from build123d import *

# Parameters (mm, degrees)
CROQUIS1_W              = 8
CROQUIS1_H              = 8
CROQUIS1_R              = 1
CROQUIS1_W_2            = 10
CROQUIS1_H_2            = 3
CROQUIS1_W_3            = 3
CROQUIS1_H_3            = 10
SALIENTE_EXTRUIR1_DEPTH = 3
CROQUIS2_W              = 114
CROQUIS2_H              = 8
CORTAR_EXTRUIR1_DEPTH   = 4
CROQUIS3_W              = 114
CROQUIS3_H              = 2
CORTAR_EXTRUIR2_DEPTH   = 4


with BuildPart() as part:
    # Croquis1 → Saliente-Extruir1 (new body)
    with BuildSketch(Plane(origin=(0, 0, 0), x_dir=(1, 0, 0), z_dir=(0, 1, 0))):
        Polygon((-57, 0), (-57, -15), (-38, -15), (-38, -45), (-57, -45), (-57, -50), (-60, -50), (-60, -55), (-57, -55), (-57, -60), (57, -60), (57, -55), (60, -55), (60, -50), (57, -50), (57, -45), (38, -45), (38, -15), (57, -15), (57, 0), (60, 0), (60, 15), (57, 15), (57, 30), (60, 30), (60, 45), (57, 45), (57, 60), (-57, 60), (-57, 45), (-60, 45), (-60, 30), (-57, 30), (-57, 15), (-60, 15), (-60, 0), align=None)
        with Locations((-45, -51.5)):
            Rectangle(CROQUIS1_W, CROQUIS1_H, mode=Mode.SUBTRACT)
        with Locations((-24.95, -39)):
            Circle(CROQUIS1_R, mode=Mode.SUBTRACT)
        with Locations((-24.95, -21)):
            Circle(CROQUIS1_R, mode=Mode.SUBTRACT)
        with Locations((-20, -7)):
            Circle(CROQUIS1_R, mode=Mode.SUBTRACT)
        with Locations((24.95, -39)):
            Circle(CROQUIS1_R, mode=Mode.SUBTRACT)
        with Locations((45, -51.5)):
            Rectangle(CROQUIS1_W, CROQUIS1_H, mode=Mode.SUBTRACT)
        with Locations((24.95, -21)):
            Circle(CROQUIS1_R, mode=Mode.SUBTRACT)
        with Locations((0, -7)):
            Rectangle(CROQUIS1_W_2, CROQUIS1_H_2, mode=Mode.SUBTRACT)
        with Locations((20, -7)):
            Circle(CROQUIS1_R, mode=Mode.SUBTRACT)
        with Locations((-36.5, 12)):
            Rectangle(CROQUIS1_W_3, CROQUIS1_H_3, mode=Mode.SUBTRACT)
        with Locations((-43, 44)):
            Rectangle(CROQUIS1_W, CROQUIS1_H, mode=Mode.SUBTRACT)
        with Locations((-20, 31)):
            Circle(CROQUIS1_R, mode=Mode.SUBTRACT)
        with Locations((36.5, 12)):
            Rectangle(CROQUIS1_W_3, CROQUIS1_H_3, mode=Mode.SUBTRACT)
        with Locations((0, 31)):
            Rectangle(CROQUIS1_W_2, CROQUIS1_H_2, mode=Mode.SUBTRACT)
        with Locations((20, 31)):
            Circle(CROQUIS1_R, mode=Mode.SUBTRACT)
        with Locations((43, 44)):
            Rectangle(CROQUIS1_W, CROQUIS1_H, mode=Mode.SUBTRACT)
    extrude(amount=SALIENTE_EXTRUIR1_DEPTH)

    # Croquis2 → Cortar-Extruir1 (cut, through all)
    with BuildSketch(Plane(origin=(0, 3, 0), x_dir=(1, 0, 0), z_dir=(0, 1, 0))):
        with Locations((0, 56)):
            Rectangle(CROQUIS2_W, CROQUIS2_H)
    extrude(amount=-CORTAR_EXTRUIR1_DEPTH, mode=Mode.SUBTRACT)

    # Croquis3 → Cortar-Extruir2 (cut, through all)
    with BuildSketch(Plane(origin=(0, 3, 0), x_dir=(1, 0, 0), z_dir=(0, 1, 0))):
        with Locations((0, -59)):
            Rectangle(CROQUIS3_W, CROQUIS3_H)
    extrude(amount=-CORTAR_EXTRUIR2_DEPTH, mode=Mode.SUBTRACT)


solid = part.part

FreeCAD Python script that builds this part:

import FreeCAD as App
import Part
import Sketcher

V = App.Vector

doc = App.newDocument("Part")
body = doc.addObject("PartDesign::Body", "Body")

# Sketch on XZ plane
sketch1 = body.newObject("Sketcher::SketchObject", "Sketch")
sketch1.AttachmentSupport = (doc.getObject("XZ_Plane"), [""])
sketch1.MapMode = "FlatFace"
sketch1.addGeometry([
    Part.LineSegment(V(-57, 0, 0), V(-57, 15, 0)),  # 0
    Part.LineSegment(V(-57, 15, 0), V(-38, 15, 0)),  # 1
    Part.LineSegment(V(-38, 15, 0), V(-38, 45, 0)),  # 2
    Part.LineSegment(V(-38, 45, 0), V(-57, 45, 0)),  # 3
    Part.LineSegment(V(-57, 45, 0), V(-57, 50, 0)),  # 4
    Part.LineSegment(V(-57, 50, 0), V(-60, 50, 0)),  # 5
    Part.LineSegment(V(-60, 50, 0), V(-60, 55, 0)),  # 6
    Part.LineSegment(V(-60, 55, 0), V(-57, 55, 0)),  # 7
    Part.LineSegment(V(-57, 55, 0), V(-57, 60, 0)),  # 8
    Part.LineSegment(V(-57, 60, 0), V(57, 60, 0)),  # 9
    Part.LineSegment(V(57, 60, 0), V(57, 55, 0)),  # 10
    Part.LineSegment(V(57, 55, 0), V(60, 55, 0)),  # 11
    Part.LineSegment(V(60, 55, 0), V(60, 50, 0)),  # 12
    Part.LineSegment(V(60, 50, 0), V(57, 50, 0)),  # 13
    Part.LineSegment(V(57, 50, 0), V(57, 45, 0)),  # 14
    Part.LineSegment(V(57, 45, 0), V(38, 45, 0)),  # 15
    Part.LineSegment(V(38, 45, 0), V(38, 15, 0)),  # 16
    Part.LineSegment(V(38, 15, 0), V(57, 15, 0)),  # 17
    Part.LineSegment(V(57, 15, 0), V(57, 0, 0)),  # 18
    Part.LineSegment(V(57, 0, 0), V(60, 0, 0)),  # 19
    Part.LineSegment(V(60, 0, 0), V(60, -15, 0)),  # 20
    Part.LineSegment(V(60, -15, 0), V(57, -15, 0)),  # 21
    Part.LineSegment(V(57, -15, 0), V(57, -30, 0)),  # 22
    Part.LineSegment(V(57, -30, 0), V(60, -30, 0)),  # 23
    Part.LineSegment(V(60, -30, 0), V(60, -45, 0)),  # 24
    Part.LineSegment(V(60, -45, 0), V(57, -45, 0)),  # 25
    Part.LineSegment(V(57, -45, 0), V(57, -60, 0)),  # 26
    Part.LineSegment(V(57, -60, 0), V(-57, -60, 0)),  # 27
    Part.LineSegment(V(-57, -60, 0), V(-57, -45, 0)),  # 28
    Part.LineSegment(V(-57, -45, 0), V(-60, -45, 0)),  # 29
    Part.LineSegment(V(-60, -45, 0), V(-60, -30, 0)),  # 30
    Part.LineSegment(V(-60, -30, 0), V(-57, -30, 0)),  # 31
    Part.LineSegment(V(-57, -30, 0), V(-57, -15, 0)),  # 32
    Part.LineSegment(V(-57, -15, 0), V(-60, -15, 0)),  # 33
    Part.LineSegment(V(-60, -15, 0), V(-60, 0, 0)),  # 34
    Part.LineSegment(V(-60, 0, 0), V(-57, 0, 0)),  # 35
    Part.LineSegment(V(-41, 55.5, 0), V(-49, 55.5, 0)),  # 36
    Part.LineSegment(V(-49, 55.5, 0), V(-49, 47.5, 0)),  # 37
    Part.LineSegment(V(-49, 47.5, 0), V(-41, 47.5, 0)),  # 38
    Part.LineSegment(V(-41, 47.5, 0), V(-41, 55.5, 0)),  # 39
    Part.Circle(V(-24.9, 39, 0), V(0, 0, 1), 1),  # 40
    Part.Circle(V(-24.9, 21, 0), V(0, 0, 1), 1),  # 41
    Part.Circle(V(-20, 7, 0), V(0, 0, 1), 1),  # 42
    Part.LineSegment(V(5, 8.5, 0), V(-5, 8.5, 0)),  # 43
    Part.LineSegment(V(-5, 8.5, 0), V(-5, 5.5, 0)),  # 44
    Part.LineSegment(V(-5, 5.5, 0), V(5, 5.5, 0)),  # 45
    Part.LineSegment(V(5, 5.5, 0), V(5, 8.5, 0)),  # 46
    Part.LineSegment(V(49, 55.5, 0), V(41, 55.5, 0)),  # 47
    Part.LineSegment(V(41, 55.5, 0), V(41, 47.5, 0)),  # 48
    Part.LineSegment(V(41, 47.5, 0), V(49, 47.5, 0)),  # 49
    Part.LineSegment(V(49, 47.5, 0), V(49, 55.5, 0)),  # 50
    Part.Circle(V(24.9, 39, 0), V(0, 0, 1), 1),  # 51
    Part.Circle(V(20, 7, 0), V(0, 0, 1), 1),  # 52
    Part.Circle(V(24.9, 21, 0), V(0, 0, 1), 1),  # 53
    Part.LineSegment(V(-35, -7, 0), V(-38, -7, 0)),  # 54
    Part.LineSegment(V(-38, -7, 0), V(-38, -17, 0)),  # 55
    Part.LineSegment(V(-38, -17, 0), V(-35, -17, 0)),  # 56
    Part.LineSegment(V(-35, -17, 0), V(-35, -7, 0)),  # 57
    Part.LineSegment(V(-39, -40, 0), V(-47, -40, 0)),  # 58
    Part.LineSegment(V(-47, -40, 0), V(-47, -48, 0)),  # 59
    Part.LineSegment(V(-47, -48, 0), V(-39, -48, 0)),  # 60
    Part.LineSegment(V(-39, -48, 0), V(-39, -40, 0)),  # 61
    Part.Circle(V(-20, -31, 0), V(0, 0, 1), 1),  # 62
    Part.LineSegment(V(5, -29.5, 0), V(-5, -29.5, 0)),  # 63
    Part.LineSegment(V(-5, -29.5, 0), V(-5, -32.5, 0)),  # 64
    Part.LineSegment(V(-5, -32.5, 0), V(5, -32.5, 0)),  # 65
    Part.LineSegment(V(5, -32.5, 0), V(5, -29.5, 0)),  # 66
    Part.LineSegment(V(38, -7, 0), V(35, -7, 0)),  # 67
    Part.LineSegment(V(35, -7, 0), V(35, -17, 0)),  # 68
    Part.LineSegment(V(35, -17, 0), V(38, -17, 0)),  # 69
    Part.LineSegment(V(38, -17, 0), V(38, -7, 0)),  # 70
    Part.Circle(V(20, -31, 0), V(0, 0, 1), 1),  # 71
    Part.LineSegment(V(47, -40, 0), V(39, -40, 0)),  # 72
    Part.LineSegment(V(39, -40, 0), V(39, -48, 0)),  # 73
    Part.LineSegment(V(39, -48, 0), V(47, -48, 0)),  # 74
    Part.LineSegment(V(47, -48, 0), V(47, -40, 0)),  # 75
], False)
sketch1.addConstraint([
    Sketcher.Constraint("Coincident", 0, 2, 1, 1),
    Sketcher.Constraint("Coincident", 1, 2, 2, 1),
    Sketcher.Constraint("Coincident", 2, 2, 3, 1),
    Sketcher.Constraint("Coincident", 3, 2, 4, 1),
    Sketcher.Constraint("Coincident", 4, 2, 5, 1),
    Sketcher.Constraint("Coincident", 5, 2, 6, 1),
    Sketcher.Constraint("Coincident", 6, 2, 7, 1),
    Sketcher.Constraint("Coincident", 7, 2, 8, 1),
    Sketcher.Constraint("Coincident", 8, 2, 9, 1),
    Sketcher.Constraint("Coincident", 9, 2, 10, 1),
    Sketcher.Constraint("Coincident", 10, 2, 11, 1),
    Sketcher.Constraint("Coincident", 11, 2, 12, 1),
    Sketcher.Constraint("Coincident", 12, 2, 13, 1),
    Sketcher.Constraint("Coincident", 13, 2, 14, 1),
    Sketcher.Constraint("Coincident", 14, 2, 15, 1),
    Sketcher.Constraint("Coincident", 15, 2, 16, 1),
    Sketcher.Constraint("Coincident", 16, 2, 17, 1),
    Sketcher.Constraint("Coincident", 17, 2, 18, 1),
    Sketcher.Constraint("Coincident", 18, 2, 19, 1),
    Sketcher.Constraint("Coincident", 19, 2, 20, 1),
    Sketcher.Constraint("Coincident", 20, 2, 21, 1),
    Sketcher.Constraint("Coincident", 21, 2, 22, 1),
    Sketcher.Constraint("Coincident", 22, 2, 23, 1),
    Sketcher.Constraint("Coincident", 23, 2, 24, 1),
    Sketcher.Constraint("Coincident", 24, 2, 25, 1),
    Sketcher.Constraint("Coincident", 25, 2, 26, 1),
    Sketcher.Constraint("Coincident", 26, 2, 27, 1),
    Sketcher.Constraint("Coincident", 27, 2, 28, 1),
    Sketcher.Constraint("Coincident", 28, 2, 29, 1),
    Sketcher.Constraint("Coincident", 29, 2, 30, 1),
    Sketcher.Constraint("Coincident", 30, 2, 31, 1),
    Sketcher.Constraint("Coincident", 31, 2, 32, 1),
    Sketcher.Constraint("Coincident", 32, 2, 33, 1),
    Sketcher.Constraint("Coincident", 33, 2, 34, 1),
    Sketcher.Constraint("Coincident", 34, 2, 35, 1),
    Sketcher.Constraint("Coincident", 35, 2, 0, 1),
    Sketcher.Constraint("Coincident", 36, 2, 37, 1),
    Sketcher.Constraint("Coincident", 37, 2, 38, 1),
    Sketcher.Constraint("Coincident", 38, 2, 39, 1),
    Sketcher.Constraint("Coincident", 39, 2, 36, 1),
    Sketcher.Constraint("Coincident", 43, 2, 44, 1),
    Sketcher.Constraint("Coincident", 44, 2, 45, 1),
    Sketcher.Constraint("Coincident", 45, 2, 46, 1),
    Sketcher.Constraint("Coincident", 46, 2, 43, 1),
    Sketcher.Constraint("Coincident", 47, 2, 48, 1),
    Sketcher.Constraint("Coincident", 48, 2, 49, 1),
    Sketcher.Constraint("Coincident", 49, 2, 50, 1),
    Sketcher.Constraint("Coincident", 50, 2, 47, 1),
    Sketcher.Constraint("Coincident", 54, 2, 55, 1),
    Sketcher.Constraint("Coincident", 55, 2, 56, 1),
    Sketcher.Constraint("Coincident", 56, 2, 57, 1),
    Sketcher.Constraint("Coincident", 57, 2, 54, 1),
    Sketcher.Constraint("Coincident", 58, 2, 59, 1),
    Sketcher.Constraint("Coincident", 59, 2, 60, 1),
    Sketcher.Constraint("Coincident", 60, 2, 61, 1),
    Sketcher.Constraint("Coincident", 61, 2, 58, 1),
    Sketcher.Constraint("Coincident", 63, 2, 64, 1),
    Sketcher.Constraint("Coincident", 64, 2, 65, 1),
    Sketcher.Constraint("Coincident", 65, 2, 66, 1),
    Sketcher.Constraint("Coincident", 66, 2, 63, 1),
    Sketcher.Constraint("Coincident", 67, 2, 68, 1),
    Sketcher.Constraint("Coincident", 68, 2, 69, 1),
    Sketcher.Constraint("Coincident", 69, 2, 70, 1),
    Sketcher.Constraint("Coincident", 70, 2, 67, 1),
    Sketcher.Constraint("Coincident", 72, 2, 73, 1),
    Sketcher.Constraint("Coincident", 73, 2, 74, 1),
    Sketcher.Constraint("Coincident", 74, 2, 75, 1),
    Sketcher.Constraint("Coincident", 75, 2, 72, 1),
    Sketcher.Constraint("Vertical", 0),
    Sketcher.Constraint("Horizontal", 1),
    Sketcher.Constraint("Vertical", 2),
    Sketcher.Constraint("Horizontal", 3),
    Sketcher.Constraint("Vertical", 4),
    Sketcher.Constraint("Horizontal", 5),
    Sketcher.Constraint("Vertical", 6),
    Sketcher.Constraint("Horizontal", 7),
    Sketcher.Constraint("Vertical", 8),
    Sketcher.Constraint("Horizontal", 9),
    Sketcher.Constraint("Vertical", 10),
    Sketcher.Constraint("Horizontal", 11),
    Sketcher.Constraint("Vertical", 12),
    Sketcher.Constraint("Horizontal", 13),
    Sketcher.Constraint("Vertical", 14),
    Sketcher.Constraint("Horizontal", 15),
    Sketcher.Constraint("Vertical", 16),
    Sketcher.Constraint("Horizontal", 17),
    Sketcher.Constraint("Vertical", 18),
    Sketcher.Constraint("Horizontal", 19),
    Sketcher.Constraint("Vertical", 20),
    Sketcher.Constraint("Horizontal", 21),
    Sketcher.Constraint("Vertical", 22),
    Sketcher.Constraint("Horizontal", 23),
    Sketcher.Constraint("Vertical", 24),
    Sketcher.Constraint("Horizontal", 25),
    Sketcher.Constraint("Vertical", 26),
    Sketcher.Constraint("Horizontal", 27),
    Sketcher.Constraint("Vertical", 28),
    Sketcher.Constraint("Horizontal", 29),
    Sketcher.Constraint("Vertical", 30),
    Sketcher.Constraint("Horizontal", 31),
    Sketcher.Constraint("Vertical", 32),
    Sketcher.Constraint("Horizontal", 33),
    Sketcher.Constraint("Vertical", 34),
    Sketcher.Constraint("Horizontal", 35),
    Sketcher.Constraint("Horizontal", 36),
    Sketcher.Constraint("Vertical", 37),
    Sketcher.Constraint("Horizontal", 38),
    Sketcher.Constraint("Vertical", 39),
    Sketcher.Constraint("Horizontal", 43),
    Sketcher.Constraint("Vertical", 44),
    Sketcher.Constraint("Horizontal", 45),
    Sketcher.Constraint("Vertical", 46),
    Sketcher.Constraint("Horizontal", 47),
    Sketcher.Constraint("Vertical", 48),
    Sketcher.Constraint("Horizontal", 49),
    Sketcher.Constraint("Vertical", 50),
    Sketcher.Constraint("Horizontal", 54),
    Sketcher.Constraint("Vertical", 55),
    Sketcher.Constraint("Horizontal", 56),
    Sketcher.Constraint("Vertical", 57),
    Sketcher.Constraint("Horizontal", 58),
    Sketcher.Constraint("Vertical", 59),
    Sketcher.Constraint("Horizontal", 60),
    Sketcher.Constraint("Vertical", 61),
    Sketcher.Constraint("Horizontal", 63),
    Sketcher.Constraint("Vertical", 64),
    Sketcher.Constraint("Horizontal", 65),
    Sketcher.Constraint("Vertical", 66),
    Sketcher.Constraint("Horizontal", 67),
    Sketcher.Constraint("Vertical", 68),
    Sketcher.Constraint("Horizontal", 69),
    Sketcher.Constraint("Vertical", 70),
    Sketcher.Constraint("Horizontal", 72),
    Sketcher.Constraint("Vertical", 73),
    Sketcher.Constraint("Horizontal", 74),
    Sketcher.Constraint("Vertical", 75),
    Sketcher.Constraint("Equal", 40, 41),
    Sketcher.Constraint("Equal", 41, 42),
    Sketcher.Constraint("Equal", 42, 51),
    Sketcher.Constraint("Equal", 51, 52),
    Sketcher.Constraint("Equal", 52, 53),
    Sketcher.Constraint("Equal", 53, 62),
    Sketcher.Constraint("Equal", 62, 71),
    Sketcher.Constraint("Symmetric", 0, 2, 21, 2, -1, 1),
    Sketcher.Constraint("Symmetric", 3, 2, 25, 2, -1, 1),
    Sketcher.Constraint("Symmetric", 8, 2, 26, 2, -1, 1),
    Sketcher.Constraint("Symmetric", 14, 2, 28, 2, -1, 1),
    Sketcher.Constraint("Symmetric", 17, 2, 32, 2, -1, 1),
    Sketcher.Constraint("Symmetric", 19, 2, 34, 2, -1, 1),
    Sketcher.Constraint("Symmetric", 40, 3, 51, 3, -2),
    Sketcher.Constraint("Symmetric", 42, 3, 52, 3, -2),
    Sketcher.Constraint("Symmetric", 41, 3, 53, 3, -2),
    Sketcher.Constraint("Symmetric", 62, 3, 71, 3, -2),
    Sketcher.Constraint("Symmetric", 7, 2, 10, 2, -2),
    Sketcher.Constraint("Symmetric", 5, 2, 12, 2, -2),
    Sketcher.Constraint("Symmetric", 3, 2, 14, 2, -2),
    Sketcher.Constraint("Symmetric", 1, 2, 16, 2, -2),
    Sketcher.Constraint("Symmetric", 23, 2, 30, 2, -2),
    Sketcher.Constraint("Symmetric", 18, 2, 35, 2, -2),
    Sketcher.Constraint("Symmetric", 39, 2, 47, 2, -2),
    Sketcher.Constraint("Symmetric", 37, 2, 49, 2, -2),
    Sketcher.Constraint("Symmetric", 57, 2, 67, 2, -2),
    Sketcher.Constraint("Symmetric", 55, 2, 69, 2, -2),
    Sketcher.Constraint("Symmetric", 61, 2, 72, 2, -2),
    Sketcher.Constraint("Symmetric", 59, 2, 74, 2, -2),
    Sketcher.Constraint("Vertical", 40, 3, 41, 3),
    Sketcher.Constraint("Vertical", 42, 3, 62, 3),
    Sketcher.Constraint("Vertical", 0, 2, 3, 2),
    Sketcher.Constraint("Vertical", 12, 2, 19, 2),
    Sketcher.Constraint("Vertical", 20, 2, 23, 2),
    Sketcher.Constraint("Vertical", 2, 2, 54, 2),
    Sketcher.Constraint("Vertical", 44, 2, 63, 2),
    Sketcher.Constraint("Vertical", 46, 2, 65, 2),
    Sketcher.Constraint("Equal", 35, 54),
    Sketcher.Constraint("Equal", 49, 58),
    Sketcher.Constraint("Equal", 4, 6),
    Sketcher.Constraint("Equal", 6, 8),
    Sketcher.Constraint("Equal", 20, 22),
    Sketcher.Constraint("Equal", 22, 24),
    Sketcher.Constraint("Equal", 24, 26),
    Sketcher.Constraint("Equal", 74, 37),
    Sketcher.Constraint("Equal", 69, 44),
    Sketcher.Constraint("Equal", 65, 55),
    Sketcher.Constraint("Equal", 50, 59),
    Sketcher.Constraint("Equal", 46, 64),
    Sketcher.Constraint("Diameter", 40, 2.0),
    Sketcher.Constraint("DistanceX", 1, 1, 1, 2, 19.0),
    Sketcher.Constraint("DistanceX", 5, 2, 5, 1, 3.0),
    Sketcher.Constraint("DistanceX", 9, 1, 9, 2, 114.0),
    Sketcher.Constraint("DistanceX", 36, 2, 36, 1, 8.0),
    Sketcher.Constraint("DistanceX", 43, 2, 43, 1, 10.0),
    Sketcher.Constraint("DistanceY", 0, 1, 0, 2, 15.0),
    Sketcher.Constraint("DistanceY", -1, 1, 40, 3, 39.0),
    Sketcher.Constraint("DistanceY", -1, 1, 41, 3, 21.0),
    Sketcher.Constraint("DistanceX", 42, 3, -1, 1, 20.0),
    Sketcher.Constraint("DistanceY", -1, 1, 42, 3, 7.0),
    Sketcher.Constraint("DistanceY", 62, 3, -1, 1, 31.0),
    Sketcher.Constraint("DistanceX", 36, 2, -1, 1, 49.0),
    Sketcher.Constraint("DistanceX", 43, 2, -1, 1, 5.0),
    Sketcher.Constraint("DistanceY", 54, 2, -1, 1, 7.0),
    Sketcher.Constraint("DistanceX", 58, 2, -1, 1, 47.0),
    Sketcher.Constraint("DistanceY", 58, 2, -1, 1, 40.0),
    Sketcher.Constraint("DistanceY", -1, 1, 36, 2, 55.5),
    Sketcher.Constraint("DistanceY", -1, 1, 43, 2, 8.5),
    Sketcher.Constraint("DistanceY", 63, 2, -1, 1, 29.5),
    Sketcher.Constraint("DistanceX", 40, 3, -1, 1, 24.95),
])
pad1 = body.newObject("PartDesign::Pad", "Pad")
pad1.Profile = sketch1
pad1.Length = 3
pad1.Reversed = True

# Sketch on XZ plane
sketch2 = body.newObject("Sketcher::SketchObject", "Sketch001")
sketch2.AttachmentSupport = (doc.getObject("XZ_Plane"), [""])
sketch2.MapMode = "FlatFace"
sketch2.AttachmentOffset = App.Placement(V(0, 0, -3), App.Rotation())
sketch2.addGeometry([
    Part.LineSegment(V(-57, -60, 0), V(-57, -52, 0)),
    Part.LineSegment(V(-57, -52, 0), V(57, -52, 0)),
    Part.LineSegment(V(57, -52, 0), V(57, -60, 0)),
    Part.LineSegment(V(57, -60, 0), V(-57, -60, 0)),
], False)
sketch2.addConstraint([
    Sketcher.Constraint("Coincident", 0, 2, 1, 1),
    Sketcher.Constraint("Coincident", 1, 2, 2, 1),
    Sketcher.Constraint("Coincident", 2, 2, 3, 1),
    Sketcher.Constraint("Coincident", 3, 2, 0, 1),
    Sketcher.Constraint("Vertical", 0),
    Sketcher.Constraint("Horizontal", 1),
    Sketcher.Constraint("Vertical", 2),
    Sketcher.Constraint("Horizontal", 3),
    Sketcher.Constraint("DistanceX", 1, 1, 1, 2, 114.0),
    Sketcher.Constraint("DistanceY", 0, 1, 0, 2, 8.0),
    Sketcher.Constraint("DistanceX", 0, 2, -1, 1, 57.0),
    Sketcher.Constraint("DistanceY", 0, 2, -1, 1, 52.0),
])
pocket1 = body.newObject("PartDesign::Pocket", "Pocket")
pocket1.Profile = sketch2
pocket1.Type = "ThroughAll"
pocket1.Reversed = True

# Sketch on XZ plane
sketch3 = body.newObject("Sketcher::SketchObject", "Sketch002")
sketch3.AttachmentSupport = (doc.getObject("XZ_Plane"), [""])
sketch3.MapMode = "FlatFace"
sketch3.AttachmentOffset = App.Placement(V(0, 0, -3), App.Rotation())
sketch3.addGeometry([
    Part.LineSegment(V(-57, 58, 0), V(-57, 60, 0)),
    Part.LineSegment(V(-57, 60, 0), V(57, 60, 0)),
    Part.LineSegment(V(57, 60, 0), V(57, 58, 0)),
    Part.LineSegment(V(57, 58, 0), V(-57, 58, 0)),
], False)
sketch3.addConstraint([
    Sketcher.Constraint("Coincident", 0, 2, 1, 1),
    Sketcher.Constraint("Coincident", 1, 2, 2, 1),
    Sketcher.Constraint("Coincident", 2, 2, 3, 1),
    Sketcher.Constraint("Coincident", 3, 2, 0, 1),
    Sketcher.Constraint("Vertical", 0),
    Sketcher.Constraint("Horizontal", 1),
    Sketcher.Constraint("Vertical", 2),
    Sketcher.Constraint("Horizontal", 3),
    Sketcher.Constraint("DistanceX", 1, 1, 1, 2, 114.0),
    Sketcher.Constraint("DistanceY", 0, 1, 0, 2, 2.0),
    Sketcher.Constraint("DistanceX", 0, 2, -1, 1, 57.0),
    Sketcher.Constraint("DistanceY", -1, 1, 0, 2, 60.0),
])
pocket2 = body.newObject("PartDesign::Pocket", "Pocket001")
pocket2.Profile = sketch3
pocket2.Type = "ThroughAll"
pocket2.Reversed = True

doc.recompute()
